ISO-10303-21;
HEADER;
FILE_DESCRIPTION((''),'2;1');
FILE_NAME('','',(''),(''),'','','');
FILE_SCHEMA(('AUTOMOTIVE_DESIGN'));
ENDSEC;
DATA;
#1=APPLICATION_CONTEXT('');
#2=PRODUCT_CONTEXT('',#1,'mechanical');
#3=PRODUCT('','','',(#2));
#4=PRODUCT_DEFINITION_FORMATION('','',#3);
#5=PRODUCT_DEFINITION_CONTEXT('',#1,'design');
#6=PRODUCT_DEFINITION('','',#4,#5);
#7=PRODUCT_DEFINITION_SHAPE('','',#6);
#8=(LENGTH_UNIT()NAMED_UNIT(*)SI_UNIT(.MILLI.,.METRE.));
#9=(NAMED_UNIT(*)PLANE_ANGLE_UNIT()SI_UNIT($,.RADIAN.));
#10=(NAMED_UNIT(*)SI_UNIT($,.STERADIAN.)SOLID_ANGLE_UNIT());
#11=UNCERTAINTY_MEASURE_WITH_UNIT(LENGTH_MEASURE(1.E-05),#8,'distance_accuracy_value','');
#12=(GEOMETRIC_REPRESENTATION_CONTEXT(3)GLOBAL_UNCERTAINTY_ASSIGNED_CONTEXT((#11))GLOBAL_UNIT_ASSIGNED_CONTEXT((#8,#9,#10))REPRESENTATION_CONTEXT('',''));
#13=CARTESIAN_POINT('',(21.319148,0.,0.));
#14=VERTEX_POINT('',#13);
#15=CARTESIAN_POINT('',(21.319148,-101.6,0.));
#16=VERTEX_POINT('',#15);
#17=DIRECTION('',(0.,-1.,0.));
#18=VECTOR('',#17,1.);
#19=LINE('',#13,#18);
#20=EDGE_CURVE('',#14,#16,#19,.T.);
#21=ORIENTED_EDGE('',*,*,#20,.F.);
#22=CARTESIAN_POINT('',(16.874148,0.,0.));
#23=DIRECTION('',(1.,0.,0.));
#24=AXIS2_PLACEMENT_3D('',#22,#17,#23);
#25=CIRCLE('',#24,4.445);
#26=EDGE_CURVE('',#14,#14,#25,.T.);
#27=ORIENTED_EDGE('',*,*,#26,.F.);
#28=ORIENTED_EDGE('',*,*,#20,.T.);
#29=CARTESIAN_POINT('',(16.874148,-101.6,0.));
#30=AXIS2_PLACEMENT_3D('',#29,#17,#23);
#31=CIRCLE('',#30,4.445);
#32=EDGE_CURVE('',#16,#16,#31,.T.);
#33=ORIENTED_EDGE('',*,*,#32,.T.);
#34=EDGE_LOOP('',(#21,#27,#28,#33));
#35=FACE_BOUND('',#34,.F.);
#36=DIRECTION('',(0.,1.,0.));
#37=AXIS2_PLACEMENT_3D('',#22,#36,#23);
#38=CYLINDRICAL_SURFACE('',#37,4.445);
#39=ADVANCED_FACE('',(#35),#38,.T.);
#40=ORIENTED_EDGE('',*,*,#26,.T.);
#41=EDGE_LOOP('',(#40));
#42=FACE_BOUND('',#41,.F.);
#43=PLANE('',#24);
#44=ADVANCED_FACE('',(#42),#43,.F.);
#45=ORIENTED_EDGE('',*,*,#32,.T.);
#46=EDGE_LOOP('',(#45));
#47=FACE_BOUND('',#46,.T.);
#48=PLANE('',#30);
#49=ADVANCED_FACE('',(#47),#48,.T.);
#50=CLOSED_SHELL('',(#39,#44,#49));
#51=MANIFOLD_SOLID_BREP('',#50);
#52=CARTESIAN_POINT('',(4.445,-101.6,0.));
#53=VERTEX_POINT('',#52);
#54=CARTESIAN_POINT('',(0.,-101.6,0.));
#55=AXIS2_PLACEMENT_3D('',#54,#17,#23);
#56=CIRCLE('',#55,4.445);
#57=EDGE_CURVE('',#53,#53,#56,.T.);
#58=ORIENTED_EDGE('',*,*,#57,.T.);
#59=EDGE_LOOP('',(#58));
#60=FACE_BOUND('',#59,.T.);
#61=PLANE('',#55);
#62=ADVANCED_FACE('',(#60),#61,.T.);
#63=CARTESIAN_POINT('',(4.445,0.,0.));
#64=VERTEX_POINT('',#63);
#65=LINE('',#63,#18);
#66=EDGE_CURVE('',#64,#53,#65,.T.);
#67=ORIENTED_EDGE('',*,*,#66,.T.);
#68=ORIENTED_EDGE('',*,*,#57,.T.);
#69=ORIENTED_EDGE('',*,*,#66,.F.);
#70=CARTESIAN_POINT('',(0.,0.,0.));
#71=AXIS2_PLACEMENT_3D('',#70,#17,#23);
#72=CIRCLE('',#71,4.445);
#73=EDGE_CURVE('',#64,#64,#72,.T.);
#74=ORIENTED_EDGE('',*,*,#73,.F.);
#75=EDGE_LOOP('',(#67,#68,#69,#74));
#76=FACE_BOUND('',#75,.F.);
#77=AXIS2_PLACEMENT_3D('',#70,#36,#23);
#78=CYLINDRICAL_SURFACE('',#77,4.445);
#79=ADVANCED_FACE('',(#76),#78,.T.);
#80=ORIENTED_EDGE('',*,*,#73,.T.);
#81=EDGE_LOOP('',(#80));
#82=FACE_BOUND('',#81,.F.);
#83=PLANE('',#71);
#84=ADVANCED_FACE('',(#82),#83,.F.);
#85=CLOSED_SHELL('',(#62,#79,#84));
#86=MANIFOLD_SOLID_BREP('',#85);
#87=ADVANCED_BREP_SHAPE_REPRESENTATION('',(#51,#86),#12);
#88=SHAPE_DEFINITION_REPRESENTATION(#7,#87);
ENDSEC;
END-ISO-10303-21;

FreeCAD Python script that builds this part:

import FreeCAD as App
import Part
import Sketcher

V = App.Vector
Q = App.Units.Quantity

doc = App.newDocument("Part")
body = doc.addObject("PartDesign::Body", "Body")
body.AllowCompound = True

sketch1 = body.newObject("Sketcher::SketchObject", "Sketch")
sketch1.AttachmentSupport = (doc.getObject("XZ_Plane"), [""])
sketch1.MapMode = "FlatFace"
sketch1.addGeometry([
    Part.Circle(V(0, 0, 0), V(0, 0, 1), 4.4),
    Part.Circle(V(16.9, 0, 0), V(0, 0, 1), 4.4),
], False)
sketch1.addConstraint([
    Sketcher.Constraint("Coincident", 0, 3, -1, 1),
    Sketcher.Constraint("Equal", 0, 1),
    Sketcher.Constraint("PointOnObject", 1, 3, -1),
    Sketcher.Constraint("Diameter", 0, Q("0.35 in")),
    Sketcher.Constraint("DistanceX", -1, 1, 1, 3, Q("16.874148 mm")),
])
pad1 = body.newObject("PartDesign::Pad", "Pad")
pad1.Profile = sketch1
pad1.Length = Q("4 in")

doc.recompute()
